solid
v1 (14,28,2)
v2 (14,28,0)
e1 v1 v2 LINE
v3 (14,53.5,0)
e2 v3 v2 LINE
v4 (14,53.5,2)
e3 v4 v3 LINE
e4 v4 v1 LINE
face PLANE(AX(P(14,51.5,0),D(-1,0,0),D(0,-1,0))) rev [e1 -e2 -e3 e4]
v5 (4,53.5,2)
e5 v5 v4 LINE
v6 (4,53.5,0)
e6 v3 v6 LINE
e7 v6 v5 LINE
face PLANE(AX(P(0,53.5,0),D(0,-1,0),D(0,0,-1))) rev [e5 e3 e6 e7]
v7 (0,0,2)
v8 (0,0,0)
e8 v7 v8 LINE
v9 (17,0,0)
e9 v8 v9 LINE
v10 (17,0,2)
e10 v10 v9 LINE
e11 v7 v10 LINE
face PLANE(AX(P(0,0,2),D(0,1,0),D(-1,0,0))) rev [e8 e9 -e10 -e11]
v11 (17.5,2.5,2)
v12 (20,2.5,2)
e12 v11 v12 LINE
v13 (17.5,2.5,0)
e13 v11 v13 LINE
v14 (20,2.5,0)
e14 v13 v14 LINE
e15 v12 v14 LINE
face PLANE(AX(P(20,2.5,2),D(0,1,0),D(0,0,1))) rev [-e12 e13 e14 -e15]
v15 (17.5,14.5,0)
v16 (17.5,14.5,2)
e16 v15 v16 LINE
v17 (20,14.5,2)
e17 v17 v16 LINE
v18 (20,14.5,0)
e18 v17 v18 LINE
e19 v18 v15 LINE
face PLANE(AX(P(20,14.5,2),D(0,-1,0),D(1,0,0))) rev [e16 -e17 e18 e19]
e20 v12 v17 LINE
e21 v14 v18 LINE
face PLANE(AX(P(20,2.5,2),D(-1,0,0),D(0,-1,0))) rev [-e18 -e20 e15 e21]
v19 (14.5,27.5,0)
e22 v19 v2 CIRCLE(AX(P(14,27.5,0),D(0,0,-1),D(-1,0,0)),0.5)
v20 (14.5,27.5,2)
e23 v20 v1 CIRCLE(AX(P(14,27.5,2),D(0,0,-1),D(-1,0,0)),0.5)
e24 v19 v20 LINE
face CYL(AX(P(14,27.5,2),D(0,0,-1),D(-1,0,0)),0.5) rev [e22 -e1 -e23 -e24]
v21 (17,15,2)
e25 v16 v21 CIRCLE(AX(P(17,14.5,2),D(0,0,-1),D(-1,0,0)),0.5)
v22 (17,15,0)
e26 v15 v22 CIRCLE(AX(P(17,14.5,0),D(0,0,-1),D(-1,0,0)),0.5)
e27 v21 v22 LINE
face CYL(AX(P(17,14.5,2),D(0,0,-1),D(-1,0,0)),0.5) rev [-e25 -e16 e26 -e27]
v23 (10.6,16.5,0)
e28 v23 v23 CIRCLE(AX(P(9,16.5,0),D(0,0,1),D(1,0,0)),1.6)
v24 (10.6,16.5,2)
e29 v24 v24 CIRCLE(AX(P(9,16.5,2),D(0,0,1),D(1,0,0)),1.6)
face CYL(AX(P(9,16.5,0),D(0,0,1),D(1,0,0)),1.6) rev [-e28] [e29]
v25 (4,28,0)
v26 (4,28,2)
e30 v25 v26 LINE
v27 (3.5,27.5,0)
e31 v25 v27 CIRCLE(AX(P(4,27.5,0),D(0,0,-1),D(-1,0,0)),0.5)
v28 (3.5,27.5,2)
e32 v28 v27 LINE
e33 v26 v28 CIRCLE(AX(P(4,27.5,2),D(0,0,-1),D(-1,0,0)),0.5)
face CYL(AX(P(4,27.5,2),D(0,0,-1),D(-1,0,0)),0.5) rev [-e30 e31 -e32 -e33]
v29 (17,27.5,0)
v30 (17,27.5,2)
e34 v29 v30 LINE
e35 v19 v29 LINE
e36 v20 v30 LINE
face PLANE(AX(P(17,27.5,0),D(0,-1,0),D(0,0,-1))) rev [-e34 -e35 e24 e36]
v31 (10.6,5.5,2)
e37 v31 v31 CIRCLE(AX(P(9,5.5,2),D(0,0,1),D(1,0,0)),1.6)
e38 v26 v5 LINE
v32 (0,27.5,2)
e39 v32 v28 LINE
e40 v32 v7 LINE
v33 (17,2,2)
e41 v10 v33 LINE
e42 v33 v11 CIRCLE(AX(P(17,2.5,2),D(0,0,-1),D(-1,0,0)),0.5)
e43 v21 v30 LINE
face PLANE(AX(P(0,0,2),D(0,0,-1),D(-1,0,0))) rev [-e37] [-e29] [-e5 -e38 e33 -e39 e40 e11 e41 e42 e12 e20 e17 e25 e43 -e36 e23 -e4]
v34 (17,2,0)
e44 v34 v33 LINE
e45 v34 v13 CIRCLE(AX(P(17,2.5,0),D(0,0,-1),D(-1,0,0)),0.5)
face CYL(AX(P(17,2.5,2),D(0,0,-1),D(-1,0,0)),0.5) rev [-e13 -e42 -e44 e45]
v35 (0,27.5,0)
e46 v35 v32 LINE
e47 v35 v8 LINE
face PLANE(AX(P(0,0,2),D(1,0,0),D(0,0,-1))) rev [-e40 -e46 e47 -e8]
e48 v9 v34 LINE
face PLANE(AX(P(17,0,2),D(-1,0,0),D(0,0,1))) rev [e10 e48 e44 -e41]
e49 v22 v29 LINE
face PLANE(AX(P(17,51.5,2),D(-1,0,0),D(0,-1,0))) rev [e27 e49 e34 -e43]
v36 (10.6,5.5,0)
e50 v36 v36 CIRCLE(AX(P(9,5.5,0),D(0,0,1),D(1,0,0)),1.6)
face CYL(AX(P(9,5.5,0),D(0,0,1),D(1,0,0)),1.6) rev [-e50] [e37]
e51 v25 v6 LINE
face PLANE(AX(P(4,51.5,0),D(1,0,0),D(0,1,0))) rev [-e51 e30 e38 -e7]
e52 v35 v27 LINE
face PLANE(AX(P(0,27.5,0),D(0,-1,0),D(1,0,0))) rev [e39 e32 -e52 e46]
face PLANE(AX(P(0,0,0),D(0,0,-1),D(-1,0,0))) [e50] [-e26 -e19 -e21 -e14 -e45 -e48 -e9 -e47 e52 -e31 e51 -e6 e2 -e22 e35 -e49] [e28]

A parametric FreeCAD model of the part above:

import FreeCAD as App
import Part
import Sketcher
from FreeCAD import Vector
Q = App.Units.Quantity


def add_polygon(sketch, points):
    """Adds a closed chain of lines whose ends are joined by coincident constraints."""
    first, n = sketch.GeometryCount, len(points)
    for a, b in zip(points, points[1:] + points[:1]):
        sketch.addGeometry(Part.LineSegment(App.Vector(*a, 0), App.Vector(*b, 0)), False)
    for i in range(n):
        sketch.addConstraint(Sketcher.Constraint("Coincident", first + i, 2, first + (i + 1) % n, 1))

doc = App.newDocument("Part")
body = doc.addObject("PartDesign::Body", "Body")

# Sketch on XY plane
sketch1 = doc.addObject("Sketcher::SketchObject", "Sketch")
body.addObject(sketch1)
sketch1.AttachmentSupport = (doc.XY_Plane, [""])
sketch1.MapMode = "FlatFace"
add_polygon(sketch1, [(0, 0), (17, 0), (17, 2.5), (20, 2.5), (20, 14.5), (17, 14.5), (17, 51.5), (0, 51.5)])  # lines 0-7
sketch1.addConstraint(Sketcher.Constraint("Horizontal", 0))
sketch1.addConstraint(Sketcher.Constraint("Vertical", 1))
sketch1.addConstraint(Sketcher.Constraint("Horizontal", 2))
sketch1.addConstraint(Sketcher.Constraint("Vertical", 3))
sketch1.addConstraint(Sketcher.Constraint("Horizontal", 4))
sketch1.addConstraint(Sketcher.Constraint("Vertical", 5))
sketch1.addConstraint(Sketcher.Constraint("Horizontal", 6))
sketch1.addConstraint(Sketcher.Constraint("Vertical", 7))
sketch1.addConstraint(Sketcher.Constraint("Coincident", 7, 2, -1, 1))
sketch1.addConstraint(Sketcher.Constraint("Vertical", 1, 2, 4, 2))
sketch1.addConstraint(Sketcher.Constraint("DistanceX", 0, 1, 0, 2, Q("17 mm")))
sketch1.addConstraint(Sketcher.Constraint("DistanceX", 2, 1, 2, 2, Q("3 mm")))
sketch1.addConstraint(Sketcher.Constraint("DistanceY", 3, 1, 3, 2, Q("12 mm")))
sketch1.addConstraint(Sketcher.Constraint("DistanceY", 5, 1, 5, 2, Q("37 mm")))
sketch1.addConstraint(Sketcher.Constraint("DistanceY", 1, 1, 1, 2, Q("2.5 mm")))
pad1 = doc.addObject("PartDesign::Pad", "Pad")
body.addObject(pad1)
pad1.Profile = sketch1
pad1.Length = 2

# Sketch on XY plane
sketch2 = doc.addObject("Sketcher::SketchObject", "Sketch001")
body.addObject(sketch2)
sketch2.AttachmentSupport = (doc.XY_Plane, [""])
sketch2.MapMode = "FlatFace"
sketch2.AttachmentOffset = App.Placement(Vector(0, 0, 2), App.Rotation())
sketch2.addGeometry(Part.Circle(Vector(9, 5.5, 0), Vector(0, 0, 1), 1.6), False)
sketch2.addGeometry(Part.Circle(Vector(9, 16.5, 0), Vector(0, 0, 1), 1.6), False)
sketch2.addConstraint(Sketcher.Constraint("Equal", 0, 1))
sketch2.addConstraint(Sketcher.Constraint("Vertical", 0, 3, 1, 3))
sketch2.addConstraint(Sketcher.Constraint("Diameter", 0, Q("3.2 mm")))
sketch2.addConstraint(Sketcher.Constraint("DistanceX", -1, 1, 0, 3, Q("9 mm")))
sketch2.addConstraint(Sketcher.Constraint("DistanceY", 0, 3, 1, 3, Q("11 mm")))
sketch2.addConstraint(Sketcher.Constraint("DistanceY", -1, 1, 0, 3, Q("5.5 mm")))
pocket1 = doc.addObject("PartDesign::Pocket", "Pocket")
body.addObject(pocket1)
pocket1.Profile = sketch2
pocket1.Type = "ThroughAll"

# Sketch on XY plane
sketch3 = doc.addObject("Sketcher::SketchObject", "Sketch002")
body.addObject(sketch3)
sketch3.AttachmentSupport = (doc.XY_Plane, [""])
sketch3.MapMode = "FlatFace"
sketch3.AttachmentOffset = App.Placement(Vector(0, 0, 2), App.Rotation())
add_polygon(sketch3, [(14, 51.5), (14, 27.5), (17, 27.5), (17, 51.5)])  # lines 0-3
add_polygon(sketch3, [(0, 51.5), (0, 27.5), (4, 27.5), (4, 51.5)])  # lines 4-7
sketch3.addConstraint(Sketcher.Constraint("Vertical", 0))
sketch3.addConstraint(Sketcher.Constraint("Horizontal", 1))
sketch3.addConstraint(Sketcher.Constraint("Vertical", 2))
sketch3.addConstraint(Sketcher.Constraint("Horizontal", 3))
sketch3.addConstraint(Sketcher.Constraint("Vertical", 4))
sketch3.addConstraint(Sketcher.Constraint("Horizontal", 5))
sketch3.addConstraint(Sketcher.Constraint("Vertical", 6))
sketch3.addConstraint(Sketcher.Constraint("Horizontal", 7))
sketch3.addConstraint(Sketcher.Constraint("PointOnObject", 4, 2, -2))
sketch3.addConstraint(Sketcher.Constraint("Horizontal", 1, 2, 4, 2))
sketch3.addConstraint(Sketcher.Constraint("Horizontal", 3, 2, 6, 2))
sketch3.addConstraint(Sketcher.Constraint("DistanceX", 1, 1, 1, 2, Q("3 mm")))
sketch3.addConstraint(Sketcher.Constraint("DistanceX", 5, 1, 5, 2, Q("4 mm")))
sketch3.addConstraint(Sketcher.Constraint("DistanceY", 0, 2, 0, 1, Q("24 mm")))
sketch3.addConstraint(Sketcher.Constraint("DistanceX", -1, 1, 0, 2, Q("14 mm")))
sketch3.addConstraint(Sketcher.Constraint("DistanceY", -1, 1, 0, 2, Q("27.5 mm")))
pocket2 = doc.addObject("PartDesign::Pocket", "Pocket001")
body.addObject(pocket2)
pocket2.Profile = sketch3
pocket2.Type = "ThroughAll"

# Sketch on XZ plane
sketch4 = doc.addObject("Sketcher::SketchObject", "Sketch003")
body.addObject(sketch4)
sketch4.AttachmentSupport = (doc.XZ_Plane, [""])
sketch4.MapMode = "FlatFace"
sketch4.AttachmentOffset = App.Placement(Vector(0, 0, -51.5), App.Rotation())
add_polygon(sketch4, [(4, 0), (4, 2), (14, 2), (14, 0)])  # lines 0-3
sketch4.addConstraint(Sketcher.Constraint("Vertical", 0))
sketch4.addConstraint(Sketcher.Constraint("Horizontal", 1))
sketch4.addConstraint(Sketcher.Constraint("Vertical", 2))
sketch4.addConstraint(Sketcher.Constraint("Horizontal", 3))
sketch4.addConstraint(Sketcher.Constraint("PointOnObject", 2, 2, -1))
sketch4.addConstraint(Sketcher.Constraint("DistanceX", 1, 1, 1, 2, Q("10 mm")))
sketch4.addConstraint(Sketcher.Constraint("DistanceY", 0, 1, 0, 2, Q("2 mm")))
sketch4.addConstraint(Sketcher.Constraint("DistanceX", -1, 1, 0, 2, Q("4 mm")))
pad2 = doc.addObject("PartDesign::Pad", "Pad001")
body.addObject(pad2)
pad2.Profile = sketch4
pad2.Length = 2
pad2.Reversed = True

# Sketch on XY plane
sketch5 = doc.addObject("Sketcher::SketchObject", "Sketch004")
body.addObject(sketch5)
sketch5.AttachmentSupport = (doc.XY_Plane, [""])
sketch5.MapMode = "FlatFace"
sketch5.addGeometry(Part.Circle(Vector(14, 27.5, 0), Vector(0, 0, 1), 0.5), False)
sketch5.addGeometry(Part.Circle(Vector(4, 27.5, 0), Vector(0, 0, 1), 0.5), False)
sketch5.addConstraint(Sketcher.Constraint("Equal", 0, 1))
sketch5.addConstraint(Sketcher.Constraint("Horizontal", 0, 3, 1, 3))
sketch5.addConstraint(Sketcher.Constraint("Diameter", 0, Q("1 mm")))
sketch5.addConstraint(Sketcher.Constraint("DistanceX", -1, 1, 0, 3, Q("14 mm")))
sketch5.addConstraint(Sketcher.Constraint("DistanceX", -1, 1, 1, 3, Q("4 mm")))
sketch5.addConstraint(Sketcher.Constraint("DistanceY", -1, 1, 0, 3, Q("27.5 mm")))
pocket3 = doc.addObject("PartDesign::Pocket", "Pocket002")
body.addObject(pocket3)
pocket3.Profile = sketch5
pocket3.Length = 2
pocket3.Reversed = True

# Sketch on XY plane
sketch6 = doc.addObject("Sketcher::SketchObject", "Sketch005")
body.addObject(sketch6)
sketch6.AttachmentSupport = (doc.XY_Plane, [""])
sketch6.MapMode = "FlatFace"
sketch6.addGeometry(Part.Circle(Vector(17, 14.5, 0), Vector(0, 0, 1), 0.5), False)
sketch6.addGeometry(Part.Circle(Vector(17, 2.5, 0), Vector(0, 0, 1), 0.5), False)
sketch6.addConstraint(Sketcher.Constraint("Equal", 0, 1))
sketch6.addConstraint(Sketcher.Constraint("Vertical", 0, 3, 1, 3))
sketch6.addConstraint(Sketcher.Constraint("Diameter", 0, Q("1 mm")))
sketch6.addConstraint(Sketcher.Constraint("DistanceX", -1, 1, 0, 3, Q("17 mm")))
sketch6.addConstraint(Sketcher.Constraint("DistanceY", 1, 3, 0, 3, Q("12 mm")))
sketch6.addConstraint(Sketcher.Constraint("DistanceY", -1, 1, 0, 3, Q("14.5 mm")))
pocket4 = doc.addObject("PartDesign::Pocket", "Pocket003")
body.addObject(pocket4)
pocket4.Profile = sketch6
pocket4.Length = 2
pocket4.Reversed = True

doc.recompute()
